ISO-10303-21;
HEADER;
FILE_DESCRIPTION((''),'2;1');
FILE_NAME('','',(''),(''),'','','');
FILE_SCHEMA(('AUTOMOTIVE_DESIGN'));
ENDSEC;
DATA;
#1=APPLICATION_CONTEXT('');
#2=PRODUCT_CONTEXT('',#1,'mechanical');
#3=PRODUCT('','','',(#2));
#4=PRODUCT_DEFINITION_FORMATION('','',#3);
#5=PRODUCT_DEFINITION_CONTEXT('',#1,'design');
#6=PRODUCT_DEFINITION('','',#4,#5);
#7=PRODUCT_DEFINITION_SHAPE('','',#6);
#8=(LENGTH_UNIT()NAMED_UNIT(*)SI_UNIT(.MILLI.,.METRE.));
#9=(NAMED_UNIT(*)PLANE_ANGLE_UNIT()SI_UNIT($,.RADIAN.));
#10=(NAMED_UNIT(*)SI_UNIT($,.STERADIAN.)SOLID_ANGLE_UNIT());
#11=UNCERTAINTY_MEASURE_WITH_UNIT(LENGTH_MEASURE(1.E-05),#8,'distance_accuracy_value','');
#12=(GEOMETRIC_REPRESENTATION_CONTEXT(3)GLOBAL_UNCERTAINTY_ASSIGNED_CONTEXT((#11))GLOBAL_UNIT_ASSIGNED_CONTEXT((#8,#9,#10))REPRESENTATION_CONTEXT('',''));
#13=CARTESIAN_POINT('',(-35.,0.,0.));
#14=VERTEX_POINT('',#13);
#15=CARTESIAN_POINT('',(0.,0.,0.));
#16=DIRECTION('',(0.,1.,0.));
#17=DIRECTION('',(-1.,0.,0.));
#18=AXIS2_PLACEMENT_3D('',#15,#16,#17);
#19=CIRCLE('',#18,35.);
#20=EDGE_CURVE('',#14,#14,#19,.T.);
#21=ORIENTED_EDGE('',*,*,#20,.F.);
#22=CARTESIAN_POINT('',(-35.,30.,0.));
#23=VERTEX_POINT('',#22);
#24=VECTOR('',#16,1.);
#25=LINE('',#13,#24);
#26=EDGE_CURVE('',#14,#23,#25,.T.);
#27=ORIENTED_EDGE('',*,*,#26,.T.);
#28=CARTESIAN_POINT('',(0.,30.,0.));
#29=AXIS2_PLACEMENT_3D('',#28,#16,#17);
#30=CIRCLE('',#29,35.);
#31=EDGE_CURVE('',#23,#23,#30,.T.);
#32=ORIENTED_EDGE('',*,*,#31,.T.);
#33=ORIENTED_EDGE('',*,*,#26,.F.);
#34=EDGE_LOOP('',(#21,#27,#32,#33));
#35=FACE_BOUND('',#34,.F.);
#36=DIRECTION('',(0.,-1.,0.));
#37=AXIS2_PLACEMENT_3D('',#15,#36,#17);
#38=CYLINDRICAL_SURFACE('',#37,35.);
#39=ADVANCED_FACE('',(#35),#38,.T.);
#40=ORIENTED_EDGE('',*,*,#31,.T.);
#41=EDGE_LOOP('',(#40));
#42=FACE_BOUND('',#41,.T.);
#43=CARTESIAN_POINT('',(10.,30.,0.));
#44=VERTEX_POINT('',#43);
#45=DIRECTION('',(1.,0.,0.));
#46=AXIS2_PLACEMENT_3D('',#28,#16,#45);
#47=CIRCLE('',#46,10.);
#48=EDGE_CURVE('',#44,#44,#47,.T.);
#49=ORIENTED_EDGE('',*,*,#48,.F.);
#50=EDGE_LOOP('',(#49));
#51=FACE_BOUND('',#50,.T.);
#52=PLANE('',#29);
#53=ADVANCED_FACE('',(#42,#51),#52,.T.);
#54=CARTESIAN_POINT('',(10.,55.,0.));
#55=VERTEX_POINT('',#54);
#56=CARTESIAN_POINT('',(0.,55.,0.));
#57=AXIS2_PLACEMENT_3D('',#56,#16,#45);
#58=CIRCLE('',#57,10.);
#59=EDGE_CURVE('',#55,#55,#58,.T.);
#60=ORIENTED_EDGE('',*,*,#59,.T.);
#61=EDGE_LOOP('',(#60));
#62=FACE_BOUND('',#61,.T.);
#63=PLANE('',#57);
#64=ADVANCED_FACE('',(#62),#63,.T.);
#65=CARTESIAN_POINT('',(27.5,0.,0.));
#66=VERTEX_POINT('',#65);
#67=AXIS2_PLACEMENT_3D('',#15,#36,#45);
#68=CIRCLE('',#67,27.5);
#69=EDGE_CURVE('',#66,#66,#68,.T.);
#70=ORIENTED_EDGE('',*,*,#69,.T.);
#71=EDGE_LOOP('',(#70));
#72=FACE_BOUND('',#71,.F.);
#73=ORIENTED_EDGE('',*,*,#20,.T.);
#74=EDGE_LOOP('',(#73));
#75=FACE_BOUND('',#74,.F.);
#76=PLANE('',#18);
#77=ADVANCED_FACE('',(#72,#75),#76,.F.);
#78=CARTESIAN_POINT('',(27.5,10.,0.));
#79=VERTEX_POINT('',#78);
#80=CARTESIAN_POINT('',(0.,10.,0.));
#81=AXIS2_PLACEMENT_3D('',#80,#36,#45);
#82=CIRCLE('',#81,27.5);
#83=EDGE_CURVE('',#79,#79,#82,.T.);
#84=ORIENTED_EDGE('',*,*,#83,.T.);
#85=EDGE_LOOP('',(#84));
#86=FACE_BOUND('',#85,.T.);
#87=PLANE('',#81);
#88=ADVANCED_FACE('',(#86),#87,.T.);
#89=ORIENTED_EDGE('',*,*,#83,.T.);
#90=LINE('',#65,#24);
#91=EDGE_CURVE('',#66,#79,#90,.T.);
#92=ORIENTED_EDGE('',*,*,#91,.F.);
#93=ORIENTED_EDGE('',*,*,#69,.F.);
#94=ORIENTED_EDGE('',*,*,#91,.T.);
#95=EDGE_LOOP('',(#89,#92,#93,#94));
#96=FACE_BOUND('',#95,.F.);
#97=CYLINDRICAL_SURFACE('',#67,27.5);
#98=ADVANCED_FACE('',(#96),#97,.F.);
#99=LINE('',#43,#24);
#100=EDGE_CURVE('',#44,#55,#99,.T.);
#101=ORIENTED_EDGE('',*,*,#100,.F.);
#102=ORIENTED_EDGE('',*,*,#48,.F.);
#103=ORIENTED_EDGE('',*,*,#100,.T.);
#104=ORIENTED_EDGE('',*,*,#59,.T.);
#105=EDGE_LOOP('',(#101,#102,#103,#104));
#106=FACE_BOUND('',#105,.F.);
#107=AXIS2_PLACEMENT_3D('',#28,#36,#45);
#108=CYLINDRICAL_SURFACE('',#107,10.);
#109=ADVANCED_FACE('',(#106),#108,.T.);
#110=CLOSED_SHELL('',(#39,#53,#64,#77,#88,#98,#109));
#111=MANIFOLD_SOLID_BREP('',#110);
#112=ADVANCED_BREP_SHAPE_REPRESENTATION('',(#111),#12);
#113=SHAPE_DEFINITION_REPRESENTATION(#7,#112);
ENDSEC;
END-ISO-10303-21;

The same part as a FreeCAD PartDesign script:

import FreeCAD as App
import Part
import Sketcher

doc = App.newDocument("Part")
body = doc.addObject("PartDesign::Body", "Body")

# Sketch on XZ plane
sketch1 = body.newObject("Sketcher::SketchObject", "Sketch")
sketch1.AttachmentSupport = (doc.getObject("XZ_Plane"), [""])
sketch1.MapMode = "FlatFace"
sketch1.addGeometry(Part.Circle(App.Vector(0, 0, 0), App.Vector(0, 0, 1), 35), False)
sketch1.addConstraint([
    Sketcher.Constraint("Coincident", 0, 3, -1, 1),
    Sketcher.Constraint("Diameter", 0, 70.0),
])
pad1 = body.newObject("PartDesign::Pad", "Pad")
pad1.Profile = sketch1
pad1.Length = 30
pad1.Reversed = True

# Sketch on XZ plane
sketch2 = body.newObject("Sketcher::SketchObject", "Sketch001")
sketch2.AttachmentSupport = (doc.getObject("XZ_Plane"), [""])
sketch2.MapMode = "FlatFace"
sketch2.AttachmentOffset = App.Placement(App.Vector(0, 0, -30), App.Rotation())
sketch2.addGeometry(Part.Circle(App.Vector(0, 0, 0), App.Vector(0, 0, 1), 10), False)
sketch2.addConstraint([
    Sketcher.Constraint("Coincident", 0, 3, -1, 1),
    Sketcher.Constraint("Diameter", 0, 20.0),
])
pad2 = body.newObject("PartDesign::Pad", "Pad001")
pad2.Profile = sketch2
pad2.Length = 25
pad2.Reversed = True

# Sketch on XZ plane
sketch3 = body.newObject("Sketcher::SketchObject", "Sketch002")
sketch3.AttachmentSupport = (doc.getObject("XZ_Plane"), [""])
sketch3.MapMode = "FlatFace"
sketch3.addGeometry(Part.Circle(App.Vector(0, 0, 0), App.Vector(0, 0, 1), 28), False)
sketch3.addConstraint([
    Sketcher.Constraint("Coincident", 0, 3, -1, 1),
    Sketcher.Constraint("Diameter", 0, 55.0),
])
pocket1 = body.newObject("PartDesign::Pocket", "Pocket")
pocket1.Profile = sketch3
pocket1.Length = 10

doc.recompute()
